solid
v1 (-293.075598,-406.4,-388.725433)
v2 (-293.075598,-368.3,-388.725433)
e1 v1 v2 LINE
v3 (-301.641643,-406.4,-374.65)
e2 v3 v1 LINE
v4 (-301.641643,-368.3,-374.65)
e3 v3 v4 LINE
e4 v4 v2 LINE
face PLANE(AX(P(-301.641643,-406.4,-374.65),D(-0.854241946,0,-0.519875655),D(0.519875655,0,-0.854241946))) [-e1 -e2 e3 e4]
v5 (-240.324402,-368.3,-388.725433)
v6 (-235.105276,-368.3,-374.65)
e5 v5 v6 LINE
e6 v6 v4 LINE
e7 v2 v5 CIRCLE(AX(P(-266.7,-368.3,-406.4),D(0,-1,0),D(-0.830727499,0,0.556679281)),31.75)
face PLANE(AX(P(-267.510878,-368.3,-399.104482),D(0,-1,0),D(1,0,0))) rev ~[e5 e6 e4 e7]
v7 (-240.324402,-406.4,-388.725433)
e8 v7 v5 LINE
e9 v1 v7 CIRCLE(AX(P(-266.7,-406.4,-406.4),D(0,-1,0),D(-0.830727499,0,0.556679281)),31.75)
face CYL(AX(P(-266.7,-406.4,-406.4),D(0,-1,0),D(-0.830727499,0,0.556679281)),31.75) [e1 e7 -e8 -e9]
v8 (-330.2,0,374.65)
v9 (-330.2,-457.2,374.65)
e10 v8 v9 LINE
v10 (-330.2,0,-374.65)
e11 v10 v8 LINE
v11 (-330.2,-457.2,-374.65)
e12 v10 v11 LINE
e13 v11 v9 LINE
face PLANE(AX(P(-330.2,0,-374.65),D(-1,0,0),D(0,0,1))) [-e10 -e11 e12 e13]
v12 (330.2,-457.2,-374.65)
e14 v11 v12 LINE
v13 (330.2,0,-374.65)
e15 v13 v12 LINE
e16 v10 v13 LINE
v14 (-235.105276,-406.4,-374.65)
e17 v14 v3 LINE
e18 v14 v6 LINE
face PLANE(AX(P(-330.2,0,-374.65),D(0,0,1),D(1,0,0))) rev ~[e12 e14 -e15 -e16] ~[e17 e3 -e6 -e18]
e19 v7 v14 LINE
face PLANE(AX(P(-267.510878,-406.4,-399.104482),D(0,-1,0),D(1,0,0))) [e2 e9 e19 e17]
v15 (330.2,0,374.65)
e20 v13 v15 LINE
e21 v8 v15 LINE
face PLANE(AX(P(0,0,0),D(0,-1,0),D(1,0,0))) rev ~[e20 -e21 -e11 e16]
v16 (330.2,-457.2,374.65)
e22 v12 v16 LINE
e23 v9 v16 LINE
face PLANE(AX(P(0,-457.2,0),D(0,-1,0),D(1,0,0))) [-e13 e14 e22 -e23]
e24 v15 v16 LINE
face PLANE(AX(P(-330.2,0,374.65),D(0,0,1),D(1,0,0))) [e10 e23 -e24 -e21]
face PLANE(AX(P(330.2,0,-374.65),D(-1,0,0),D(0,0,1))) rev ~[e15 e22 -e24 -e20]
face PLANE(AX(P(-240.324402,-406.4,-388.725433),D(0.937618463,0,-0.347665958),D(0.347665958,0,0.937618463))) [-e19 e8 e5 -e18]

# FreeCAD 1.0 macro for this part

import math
import FreeCAD as App
import Part
import Sketcher
Q = App.Units.Quantity


def add_polygon(sketch, points):
    """Adds a closed chain of lines whose ends are joined by coincident constraints."""
    first, n = sketch.GeometryCount, len(points)
    for a, b in zip(points, points[1:] + points[:1]):
        sketch.addGeometry(Part.LineSegment(App.Vector(*a, 0), App.Vector(*b, 0)), False)
    for i in range(n):
        sketch.addConstraint(Sketcher.Constraint("Coincident", first + i, 2, first + (i + 1) % n, 1))

doc = App.newDocument("Part")
body = doc.addObject("PartDesign::Body", "Body")

# Sketch on XZ plane
sketch1 = body.newObject("Sketcher::SketchObject", "Sketch")
sketch1.AttachmentSupport = (doc.getObject("XZ_Plane"), [""])
sketch1.MapMode = "FlatFace"
add_polygon(sketch1, [(-330, 375), (-330, -375), (330, -375), (330, 375)])  # lines 0-3
sketch1.addConstraint([
    Sketcher.Constraint("Vertical", 0),
    Sketcher.Constraint("Horizontal", 1),
    Sketcher.Constraint("Vertical", 2),
    Sketcher.Constraint("Horizontal", 3),
    Sketcher.Constraint("Symmetric", 0, 2, 2, 2, -1, 1),
    Sketcher.Constraint("DistanceX", 1, 1, 1, 2, Q("26 in")),
    Sketcher.Constraint("DistanceY", 0, 2, 0, 1, Q("29.5 in")),
])
pad1 = body.newObject("PartDesign::Pad", "Pad")
pad1.Profile = sketch1
pad1.Length = Q("18 in")

# Sketch on XZ plane
sketch2 = body.newObject("Sketcher::SketchObject", "Sketch001")
sketch2.AttachmentSupport = (doc.getObject("XZ_Plane"), [""])
sketch2.MapMode = "FlatFace"
sketch2.AttachmentOffset = App.Placement(App.Vector(0, 0, 16 * 25.4), App.Rotation())
sketch2.addGeometry([
    Part.LineSegment(App.Vector(-302, -375, 0), App.Vector(-293, -389, 0)),
    Part.ArcOfCircle(Part.Circle(App.Vector(-267, -406, 0), App.Vector(0, 0, 1), 32), math.radians(146), math.radians(394)),
    Part.LineSegment(App.Vector(-240, -389, 0), App.Vector(-235, -375, 0)),
    Part.LineSegment(App.Vector(-235, -375, 0), App.Vector(-302, -375, 0)),
], False)
sketch2.addConstraint([
    Sketcher.Constraint("Coincident", 0, 2, 1, 1),
    Sketcher.Constraint("Coincident", 1, 2, 2, 1),
    Sketcher.Constraint("Coincident", 2, 2, 3, 1),
    Sketcher.Constraint("Coincident", 3, 2, 0, 1),
    Sketcher.Constraint("Horizontal", 3),
    Sketcher.Constraint("Horizontal", 0, 2, 1, 2),
    Sketcher.Constraint("Radius", 1, Q("1.25 in")),
    Sketcher.Constraint("DistanceY", 1, 3, -1, 1, Q("16 in")),
    Sketcher.Constraint("DistanceX", 1, 3, -1, 1, Q("10.5 in")),
    Sketcher.Constraint("DistanceY", 2, 2, -1, 1, Q("14.75 in")),
    Sketcher.Constraint("Distance", 2, 15.011898),
    Sketcher.Constraint("DistanceX", 0, 2, -1, 1, 293.075598),
    Sketcher.Constraint("DistanceX", 3, 2, 3, 1, 66.536367),
])
pad2 = body.newObject("PartDesign::Pad", "Pad001")
pad2.Profile = sketch2
pad2.Length = Q("1.5 in")
pad2.Reversed = True

doc.recompute()
